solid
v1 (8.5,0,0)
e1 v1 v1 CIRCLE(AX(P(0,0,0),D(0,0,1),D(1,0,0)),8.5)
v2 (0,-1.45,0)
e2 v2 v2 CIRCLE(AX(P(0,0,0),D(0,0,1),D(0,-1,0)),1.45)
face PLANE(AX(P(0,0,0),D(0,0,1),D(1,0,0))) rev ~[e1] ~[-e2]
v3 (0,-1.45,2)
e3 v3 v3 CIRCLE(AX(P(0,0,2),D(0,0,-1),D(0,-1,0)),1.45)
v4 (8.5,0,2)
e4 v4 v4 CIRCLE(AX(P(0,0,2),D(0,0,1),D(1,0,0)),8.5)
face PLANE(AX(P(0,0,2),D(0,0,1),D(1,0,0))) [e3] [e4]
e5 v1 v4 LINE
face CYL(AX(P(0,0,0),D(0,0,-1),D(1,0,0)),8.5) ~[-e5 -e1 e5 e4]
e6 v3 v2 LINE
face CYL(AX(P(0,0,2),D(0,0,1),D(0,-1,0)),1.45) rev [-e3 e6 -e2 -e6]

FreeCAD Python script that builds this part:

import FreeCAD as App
import Part
import Sketcher

V = App.Vector

doc = App.newDocument("Part")
params = doc.addObject("Spreadsheet::Sheet", "Params")
for row, (alias, value) in enumerate([
    ("sketch1_diameter", "17 mm"),
    ("pad1_length", "2 mm"),
    ("sketch2_diameter", "2.9 mm"),
    ("hole_diameter", "2.9 mm"),
], start=1):
    params.set(f"A{row}", alias)
    params.set(f"B{row}", "=" + value)
    params.setAlias(f"B{row}", alias)

body = doc.addObject("PartDesign::Body", "Body")

sketch1 = body.newObject("Sketcher::SketchObject", "Sketch")
sketch1.AttachmentSupport = (doc.getObject("XY_Plane"), [""])
sketch1.MapMode = "FlatFace"
sketch1.addGeometry(Part.Circle(V(0, 0, 0), V(0, 0, 1), 8), False)
sketch1.addConstraint([
    Sketcher.Constraint("Coincident", 0, 3, -1, 1),
    Sketcher.Constraint("Diameter", 0, 17.0),
])
sketch1.setExpression("Constraints[1]", "Params.sketch1_diameter")
pad1 = body.newObject("PartDesign::Pad", "Pad")
pad1.Profile = sketch1
pad1.setExpression("Length", "Params.pad1_length")

sketch2 = body.newObject("Sketcher::SketchObject", "Sketch001")
sketch2.AttachmentSupport = (doc.getObject("XY_Plane"), [""])
sketch2.MapMode = "FlatFace"
sketch2.AttachmentOffset = App.Placement(V(0, 0, 2), App.Rotation())
sketch2.addGeometry(Part.Circle(V(0, 0, 0), V(0, 0, 1), 1.4), False)
sketch2.addConstraint([
    Sketcher.Constraint("Coincident", 0, 3, -1, 1),
    Sketcher.Constraint("Diameter", 0, 2.9),
])
sketch2.setExpression("Constraints[1]", "Params.sketch2_diameter")
doc.recompute()
hole = body.newObject("PartDesign::Hole", "Hole")
hole.Profile = sketch2
hole.ThreadType = "None"
hole.setExpression("Diameter", "Params.hole_diameter")
hole.DepthType = "ThroughAll"

doc.recompute()
